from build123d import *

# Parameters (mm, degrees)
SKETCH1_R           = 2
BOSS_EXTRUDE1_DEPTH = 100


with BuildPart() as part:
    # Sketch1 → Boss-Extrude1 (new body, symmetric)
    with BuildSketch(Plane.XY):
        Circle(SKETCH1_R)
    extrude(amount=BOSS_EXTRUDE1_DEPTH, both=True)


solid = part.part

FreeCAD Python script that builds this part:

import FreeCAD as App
import Part
import Sketcher
from FreeCAD import Vector

doc = App.newDocument("Part")
body = doc.addObject("PartDesign::Body", "Body")

sketch1 = body.newObject("Sketcher::SketchObject", "Sketch")
sketch1.AttachmentSupport = (doc.getObject("XY_Plane"), [""])
sketch1.MapMode = "FlatFace"
sketch1.addGeometry(Part.Circle(Vector(0, 0, 0), Vector(0, 0, 1), 2), False)
sketch1.addConstraint(Sketcher.Constraint("Coincident", 0, 3, -1, 1))
sketch1.addConstraint(Sketcher.Constraint("Diameter", 0, 4.0))
pad1 = body.newObject("PartDesign::Pad", "Pad")
pad1.Profile = sketch1
pad1.Length = 200
pad1.Midplane = True

doc.recompute()
